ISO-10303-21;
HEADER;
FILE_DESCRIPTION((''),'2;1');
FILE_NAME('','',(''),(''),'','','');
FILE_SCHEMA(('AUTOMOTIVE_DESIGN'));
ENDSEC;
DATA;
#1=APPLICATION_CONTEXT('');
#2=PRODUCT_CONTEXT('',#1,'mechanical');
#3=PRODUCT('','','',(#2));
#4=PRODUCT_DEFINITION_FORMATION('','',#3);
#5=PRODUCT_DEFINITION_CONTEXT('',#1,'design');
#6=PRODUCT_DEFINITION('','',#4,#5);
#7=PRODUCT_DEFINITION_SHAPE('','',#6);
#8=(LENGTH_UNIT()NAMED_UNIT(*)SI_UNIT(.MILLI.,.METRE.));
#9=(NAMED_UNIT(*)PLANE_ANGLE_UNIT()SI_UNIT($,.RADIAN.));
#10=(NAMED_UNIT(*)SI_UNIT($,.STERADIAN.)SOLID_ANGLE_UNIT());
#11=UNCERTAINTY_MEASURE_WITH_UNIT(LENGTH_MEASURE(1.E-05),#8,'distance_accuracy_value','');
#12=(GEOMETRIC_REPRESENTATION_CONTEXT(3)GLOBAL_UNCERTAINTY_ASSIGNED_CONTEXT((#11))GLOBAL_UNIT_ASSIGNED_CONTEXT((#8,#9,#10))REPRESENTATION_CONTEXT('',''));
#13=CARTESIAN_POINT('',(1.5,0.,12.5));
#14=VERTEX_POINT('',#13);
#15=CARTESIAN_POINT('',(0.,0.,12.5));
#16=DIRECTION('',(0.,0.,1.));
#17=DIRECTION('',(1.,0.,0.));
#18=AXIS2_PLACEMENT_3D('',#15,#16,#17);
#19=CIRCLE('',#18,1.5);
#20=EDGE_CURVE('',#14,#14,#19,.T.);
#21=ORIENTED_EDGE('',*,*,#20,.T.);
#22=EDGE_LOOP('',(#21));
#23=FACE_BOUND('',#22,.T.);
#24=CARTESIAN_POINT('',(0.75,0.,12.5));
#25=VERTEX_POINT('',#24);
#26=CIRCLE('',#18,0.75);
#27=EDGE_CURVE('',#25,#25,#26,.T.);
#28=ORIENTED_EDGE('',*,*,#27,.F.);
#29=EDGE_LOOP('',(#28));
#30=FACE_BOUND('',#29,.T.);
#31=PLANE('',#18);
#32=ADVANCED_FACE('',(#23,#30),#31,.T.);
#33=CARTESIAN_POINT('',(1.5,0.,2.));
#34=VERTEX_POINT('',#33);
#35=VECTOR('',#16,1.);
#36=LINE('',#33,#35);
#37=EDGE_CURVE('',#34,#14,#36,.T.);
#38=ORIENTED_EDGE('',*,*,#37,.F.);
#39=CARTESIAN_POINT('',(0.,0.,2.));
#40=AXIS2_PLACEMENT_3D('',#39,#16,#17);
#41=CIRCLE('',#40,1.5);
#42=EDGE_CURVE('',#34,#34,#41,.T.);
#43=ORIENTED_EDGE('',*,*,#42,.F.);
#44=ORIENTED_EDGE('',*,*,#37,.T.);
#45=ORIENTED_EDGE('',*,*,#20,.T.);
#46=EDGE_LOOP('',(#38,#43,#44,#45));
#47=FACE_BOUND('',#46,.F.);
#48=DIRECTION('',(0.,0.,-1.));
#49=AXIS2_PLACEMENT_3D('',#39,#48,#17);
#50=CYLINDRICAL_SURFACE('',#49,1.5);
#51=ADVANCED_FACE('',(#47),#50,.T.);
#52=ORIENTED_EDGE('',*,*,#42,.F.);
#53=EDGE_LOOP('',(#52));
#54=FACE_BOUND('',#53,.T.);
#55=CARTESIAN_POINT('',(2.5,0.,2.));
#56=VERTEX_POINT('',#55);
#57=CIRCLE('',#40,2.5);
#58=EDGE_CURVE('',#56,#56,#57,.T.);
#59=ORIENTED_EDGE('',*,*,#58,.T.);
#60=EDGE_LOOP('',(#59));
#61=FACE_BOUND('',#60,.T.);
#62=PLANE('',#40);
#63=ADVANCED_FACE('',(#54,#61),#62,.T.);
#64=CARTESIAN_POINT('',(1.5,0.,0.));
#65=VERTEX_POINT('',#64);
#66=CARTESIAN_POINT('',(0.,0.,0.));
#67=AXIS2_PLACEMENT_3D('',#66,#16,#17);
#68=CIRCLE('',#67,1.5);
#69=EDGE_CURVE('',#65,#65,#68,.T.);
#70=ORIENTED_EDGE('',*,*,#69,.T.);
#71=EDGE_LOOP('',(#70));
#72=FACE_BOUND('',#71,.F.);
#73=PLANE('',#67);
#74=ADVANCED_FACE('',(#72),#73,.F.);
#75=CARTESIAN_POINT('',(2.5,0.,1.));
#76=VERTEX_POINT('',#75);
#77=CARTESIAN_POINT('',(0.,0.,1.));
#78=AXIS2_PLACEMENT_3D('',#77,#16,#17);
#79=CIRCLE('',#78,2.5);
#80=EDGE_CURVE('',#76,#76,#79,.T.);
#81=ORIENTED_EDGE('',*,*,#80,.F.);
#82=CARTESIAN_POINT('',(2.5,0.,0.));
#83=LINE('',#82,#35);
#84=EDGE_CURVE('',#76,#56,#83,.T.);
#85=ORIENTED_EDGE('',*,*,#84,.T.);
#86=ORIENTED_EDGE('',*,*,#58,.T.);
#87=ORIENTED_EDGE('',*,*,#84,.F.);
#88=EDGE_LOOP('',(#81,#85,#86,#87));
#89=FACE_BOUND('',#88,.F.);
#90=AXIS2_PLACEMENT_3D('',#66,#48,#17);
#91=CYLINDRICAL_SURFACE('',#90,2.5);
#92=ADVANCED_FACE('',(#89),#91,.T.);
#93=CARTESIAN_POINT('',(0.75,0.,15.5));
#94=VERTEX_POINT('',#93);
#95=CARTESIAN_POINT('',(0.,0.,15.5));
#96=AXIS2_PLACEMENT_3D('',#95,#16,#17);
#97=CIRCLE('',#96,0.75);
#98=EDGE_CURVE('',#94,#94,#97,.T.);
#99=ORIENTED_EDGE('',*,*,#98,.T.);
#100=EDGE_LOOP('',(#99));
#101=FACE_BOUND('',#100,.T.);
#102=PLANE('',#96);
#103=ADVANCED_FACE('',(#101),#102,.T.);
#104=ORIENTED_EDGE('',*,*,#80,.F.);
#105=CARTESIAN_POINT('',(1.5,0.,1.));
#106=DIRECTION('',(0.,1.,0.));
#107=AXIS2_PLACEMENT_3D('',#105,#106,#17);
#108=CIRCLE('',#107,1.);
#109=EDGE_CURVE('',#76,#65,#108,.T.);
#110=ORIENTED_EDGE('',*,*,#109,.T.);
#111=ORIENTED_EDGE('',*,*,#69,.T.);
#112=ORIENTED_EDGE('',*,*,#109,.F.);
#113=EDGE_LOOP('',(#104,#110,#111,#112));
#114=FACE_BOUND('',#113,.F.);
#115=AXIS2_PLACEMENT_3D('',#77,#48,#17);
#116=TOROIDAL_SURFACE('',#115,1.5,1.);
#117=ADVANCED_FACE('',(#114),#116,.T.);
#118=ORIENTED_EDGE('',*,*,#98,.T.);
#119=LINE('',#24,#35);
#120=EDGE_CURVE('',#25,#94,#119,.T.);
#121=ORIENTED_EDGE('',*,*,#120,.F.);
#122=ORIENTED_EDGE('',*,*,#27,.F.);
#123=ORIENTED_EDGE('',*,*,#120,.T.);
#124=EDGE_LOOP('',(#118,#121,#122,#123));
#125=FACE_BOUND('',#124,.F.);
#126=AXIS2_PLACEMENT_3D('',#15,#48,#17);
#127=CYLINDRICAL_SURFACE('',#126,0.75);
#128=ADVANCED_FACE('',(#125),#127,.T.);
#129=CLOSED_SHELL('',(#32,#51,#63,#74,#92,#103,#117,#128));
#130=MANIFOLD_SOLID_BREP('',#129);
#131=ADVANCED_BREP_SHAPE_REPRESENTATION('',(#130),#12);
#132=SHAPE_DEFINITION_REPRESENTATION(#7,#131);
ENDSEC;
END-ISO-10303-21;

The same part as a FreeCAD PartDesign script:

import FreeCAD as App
import Part
import Sketcher
from FreeCAD import Vector


def edges_at(feature, points):
    """Names of the edges that pass closest to the given points."""
    edges = feature.Shape.Edges
    near = lambda p: min(range(len(edges)), key=lambda i: edges[i].distToShape(Part.Vertex(*p))[0])
    return sorted({f"Edge{near(p) + 1}" for p in points})

doc = App.newDocument("Part")
params = doc.addObject("Spreadsheet::Sheet", "Params")
for row, (alias, value) in enumerate([
    ("sketch1_diameter", "5 mm"),
    ("pad1_length", "2 mm"),
    ("fillet_radius", "1 mm"),
    ("sketch2_diameter", "3 mm"),
    ("pad2_length", "10.5 mm"),
    ("sketch3_diameter", "1.5 mm"),
    ("pad3_length", "3 mm"),
], start=1):
    params.set(f"A{row}", alias)
    params.set(f"B{row}", "=" + value)
    params.setAlias(f"B{row}", alias)

body = doc.addObject("PartDesign::Body", "Body")

# Sketch on XY plane
sketch1 = body.newObject("Sketcher::SketchObject", "Sketch")
sketch1.AttachmentSupport = (doc.getObject("XY_Plane"), [""])
sketch1.MapMode = "FlatFace"
sketch1.addGeometry(Part.Circle(Vector(0, 0, 0), Vector(0, 0, 1), 2.5), False)
sketch1.addConstraint([
    Sketcher.Constraint("Coincident", 0, 3, -1, 1),
    Sketcher.Constraint("Diameter", 0, 5.0),
])
sketch1.setExpression("Constraints[1]", "Params.sketch1_diameter")
pad1 = body.newObject("PartDesign::Pad", "Pad")
pad1.Profile = sketch1
pad1.setExpression("Length", "Params.pad1_length")
doc.recompute()

fillet = body.newObject("PartDesign::Fillet", "Fillet")
fillet.Base = (pad1, edges_at(pad1, [(-2.5, 0, 0)]))
fillet.setExpression("Radius", "Params.fillet_radius")

# Sketch on XY plane
sketch2 = body.newObject("Sketcher::SketchObject", "Sketch001")
sketch2.AttachmentSupport = (doc.getObject("XY_Plane"), [""])
sketch2.MapMode = "FlatFace"
sketch2.AttachmentOffset = App.Placement(Vector(0, 0, 2), App.Rotation())
sketch2.addGeometry(Part.Circle(Vector(0, 0, 0), Vector(0, 0, 1), 1.5), False)
sketch2.addConstraint([
    Sketcher.Constraint("Coincident", 0, 3, -1, 1),
    Sketcher.Constraint("Diameter", 0, 3.0),
])
sketch2.setExpression("Constraints[1]", "Params.sketch2_diameter")
pad2 = body.newObject("PartDesign::Pad", "Pad001")
pad2.Profile = sketch2
pad2.setExpression("Length", "Params.pad2_length")

# Sketch on XY plane
sketch3 = body.newObject("Sketcher::SketchObject", "Sketch002")
sketch3.AttachmentSupport = (doc.getObject("XY_Plane"), [""])
sketch3.MapMode = "FlatFace"
sketch3.AttachmentOffset = App.Placement(Vector(0, 0, 12.5), App.Rotation())
sketch3.addGeometry(Part.Circle(Vector(0, 0, 0), Vector(0, 0, 1), 0.8), False)
sketch3.addConstraint([
    Sketcher.Constraint("Coincident", 0, 3, -1, 1),
    Sketcher.Constraint("Diameter", 0, 1.5),
])
sketch3.setExpression("Constraints[1]", "Params.sketch3_diameter")
pad3 = body.newObject("PartDesign::Pad", "Pad002")
pad3.Profile = sketch3
pad3.setExpression("Length", "Params.pad3_length")

doc.recompute()
